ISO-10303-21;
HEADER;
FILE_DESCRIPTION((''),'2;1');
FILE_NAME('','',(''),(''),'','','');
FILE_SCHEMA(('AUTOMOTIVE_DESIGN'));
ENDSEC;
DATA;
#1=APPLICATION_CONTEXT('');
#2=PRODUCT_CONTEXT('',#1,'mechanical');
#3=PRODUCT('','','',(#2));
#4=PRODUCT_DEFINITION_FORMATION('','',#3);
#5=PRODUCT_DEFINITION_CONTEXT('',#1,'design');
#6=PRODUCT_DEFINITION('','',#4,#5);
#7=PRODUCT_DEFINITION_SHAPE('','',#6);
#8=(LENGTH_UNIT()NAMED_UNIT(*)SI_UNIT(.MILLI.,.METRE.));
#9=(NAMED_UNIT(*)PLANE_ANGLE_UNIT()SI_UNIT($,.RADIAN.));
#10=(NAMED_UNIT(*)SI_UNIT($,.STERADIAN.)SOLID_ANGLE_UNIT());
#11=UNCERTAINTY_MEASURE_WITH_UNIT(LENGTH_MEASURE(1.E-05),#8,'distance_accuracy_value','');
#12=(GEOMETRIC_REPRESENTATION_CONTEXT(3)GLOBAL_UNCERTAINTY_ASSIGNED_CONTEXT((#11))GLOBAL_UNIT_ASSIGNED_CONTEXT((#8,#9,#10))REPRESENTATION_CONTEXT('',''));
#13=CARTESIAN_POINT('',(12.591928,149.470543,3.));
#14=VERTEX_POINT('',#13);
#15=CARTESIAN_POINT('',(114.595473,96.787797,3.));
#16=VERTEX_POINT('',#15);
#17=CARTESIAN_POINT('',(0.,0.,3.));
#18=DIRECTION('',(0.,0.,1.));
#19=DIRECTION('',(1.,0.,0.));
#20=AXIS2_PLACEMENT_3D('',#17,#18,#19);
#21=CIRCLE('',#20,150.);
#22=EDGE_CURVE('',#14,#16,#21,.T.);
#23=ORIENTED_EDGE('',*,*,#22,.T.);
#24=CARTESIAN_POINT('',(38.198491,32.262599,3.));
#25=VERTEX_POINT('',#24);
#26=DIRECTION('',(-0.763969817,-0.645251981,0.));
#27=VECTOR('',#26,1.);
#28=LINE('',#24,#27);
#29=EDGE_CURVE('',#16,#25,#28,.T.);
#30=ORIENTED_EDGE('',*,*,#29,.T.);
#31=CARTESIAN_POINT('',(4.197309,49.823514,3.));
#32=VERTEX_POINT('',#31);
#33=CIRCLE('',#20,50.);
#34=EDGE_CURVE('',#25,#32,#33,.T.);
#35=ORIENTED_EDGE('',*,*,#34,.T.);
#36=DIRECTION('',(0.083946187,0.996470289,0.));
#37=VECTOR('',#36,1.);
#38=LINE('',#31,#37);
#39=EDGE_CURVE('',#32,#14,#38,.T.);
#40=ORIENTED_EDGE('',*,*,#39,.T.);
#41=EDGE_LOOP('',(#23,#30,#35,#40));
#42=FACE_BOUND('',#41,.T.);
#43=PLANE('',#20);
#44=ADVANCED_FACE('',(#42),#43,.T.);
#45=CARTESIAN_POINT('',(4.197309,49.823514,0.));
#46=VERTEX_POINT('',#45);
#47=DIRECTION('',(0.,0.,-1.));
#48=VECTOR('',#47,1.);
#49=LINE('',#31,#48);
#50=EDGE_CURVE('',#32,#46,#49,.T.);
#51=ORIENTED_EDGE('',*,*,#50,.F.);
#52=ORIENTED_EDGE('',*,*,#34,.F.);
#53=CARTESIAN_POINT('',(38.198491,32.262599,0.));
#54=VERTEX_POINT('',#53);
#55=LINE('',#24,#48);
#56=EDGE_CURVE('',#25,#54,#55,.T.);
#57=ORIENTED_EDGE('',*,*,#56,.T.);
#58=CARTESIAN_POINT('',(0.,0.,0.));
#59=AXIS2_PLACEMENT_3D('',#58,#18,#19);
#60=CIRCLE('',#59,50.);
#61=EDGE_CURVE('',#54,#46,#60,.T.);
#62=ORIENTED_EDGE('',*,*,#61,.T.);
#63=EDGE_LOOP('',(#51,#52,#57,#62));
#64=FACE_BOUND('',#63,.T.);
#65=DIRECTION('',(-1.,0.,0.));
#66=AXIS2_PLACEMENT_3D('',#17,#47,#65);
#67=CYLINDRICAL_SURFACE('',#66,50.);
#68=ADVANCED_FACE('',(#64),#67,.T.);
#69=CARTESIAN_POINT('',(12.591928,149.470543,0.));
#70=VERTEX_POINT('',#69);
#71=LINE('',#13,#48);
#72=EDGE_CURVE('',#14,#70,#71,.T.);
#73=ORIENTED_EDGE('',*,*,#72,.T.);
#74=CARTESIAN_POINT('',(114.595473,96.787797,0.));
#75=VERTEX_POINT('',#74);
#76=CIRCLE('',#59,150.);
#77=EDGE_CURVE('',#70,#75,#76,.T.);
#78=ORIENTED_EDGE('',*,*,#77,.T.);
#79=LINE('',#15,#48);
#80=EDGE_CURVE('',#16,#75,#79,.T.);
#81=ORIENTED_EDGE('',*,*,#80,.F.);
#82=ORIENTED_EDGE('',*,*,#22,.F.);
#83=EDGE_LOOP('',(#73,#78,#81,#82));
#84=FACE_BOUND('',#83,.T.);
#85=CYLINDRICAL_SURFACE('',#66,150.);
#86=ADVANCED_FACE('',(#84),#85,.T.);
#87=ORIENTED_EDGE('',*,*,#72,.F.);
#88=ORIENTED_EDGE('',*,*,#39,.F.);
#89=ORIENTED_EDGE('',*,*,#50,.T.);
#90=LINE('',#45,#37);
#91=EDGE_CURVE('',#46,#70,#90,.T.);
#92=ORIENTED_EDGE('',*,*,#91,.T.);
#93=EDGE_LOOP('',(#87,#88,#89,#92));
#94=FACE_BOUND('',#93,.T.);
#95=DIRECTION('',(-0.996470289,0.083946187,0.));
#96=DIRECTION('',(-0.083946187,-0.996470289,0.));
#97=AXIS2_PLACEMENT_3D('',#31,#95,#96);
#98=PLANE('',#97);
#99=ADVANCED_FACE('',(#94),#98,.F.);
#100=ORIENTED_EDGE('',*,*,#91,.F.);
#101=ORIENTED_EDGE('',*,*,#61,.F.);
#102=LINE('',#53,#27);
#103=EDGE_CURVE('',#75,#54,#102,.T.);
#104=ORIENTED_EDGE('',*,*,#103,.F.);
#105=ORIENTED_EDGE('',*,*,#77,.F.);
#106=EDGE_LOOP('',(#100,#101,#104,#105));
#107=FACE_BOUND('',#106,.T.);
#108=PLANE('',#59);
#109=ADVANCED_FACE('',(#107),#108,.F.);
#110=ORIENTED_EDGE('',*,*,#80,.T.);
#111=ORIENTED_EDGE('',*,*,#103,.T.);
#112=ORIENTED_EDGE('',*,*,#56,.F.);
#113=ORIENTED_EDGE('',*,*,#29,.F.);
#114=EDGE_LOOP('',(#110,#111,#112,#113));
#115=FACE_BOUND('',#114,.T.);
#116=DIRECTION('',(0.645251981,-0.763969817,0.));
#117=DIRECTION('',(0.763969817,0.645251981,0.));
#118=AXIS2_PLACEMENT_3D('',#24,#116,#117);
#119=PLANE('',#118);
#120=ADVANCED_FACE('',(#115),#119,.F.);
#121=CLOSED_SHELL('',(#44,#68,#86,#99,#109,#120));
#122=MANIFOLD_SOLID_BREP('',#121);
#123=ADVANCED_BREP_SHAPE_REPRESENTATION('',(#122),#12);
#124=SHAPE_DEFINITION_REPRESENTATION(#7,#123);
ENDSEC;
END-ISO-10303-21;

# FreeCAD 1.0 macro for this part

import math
import FreeCAD as App
import Part
import Sketcher
Q = App.Units.Quantity

doc = App.newDocument("Part")
body = doc.addObject("PartDesign::Body", "Body")

# Sketch on XY plane
sketch1 = body.newObject("Sketcher::SketchObject", "Sketch")
sketch1.AttachmentSupport = (doc.getObject("XY_Plane"), [""])
sketch1.MapMode = "FlatFace"
sketch1.addGeometry([
    Part.LineSegment(App.Vector(4, 50, 0), App.Vector(13, 149, 0)),
    Part.ArcOfCircle(Part.Circle(App.Vector(0, 0, 0), App.Vector(0, 0, 1), 150), math.radians(85), math.radians(400)),
    Part.LineSegment(App.Vector(115, 97, 0), App.Vector(38, 32, 0)),
    Part.ArcOfCircle(Part.Circle(App.Vector(0, 0, 0), App.Vector(0, 0, 1), 50), math.radians(40), math.radians(85)),
], False)
sketch1.addConstraint([
    Sketcher.Constraint("Coincident", 0, 2, 1, 1),
    Sketcher.Constraint("Coincident", 1, 2, 2, 1),
    Sketcher.Constraint("Coincident", 2, 2, 3, 1),
    Sketcher.Constraint("Coincident", 3, 2, 0, 1),
    Sketcher.Constraint("Coincident", 1, 3, -1, 1),
    Sketcher.Constraint("Coincident", 3, 3, -1, 1),
    Sketcher.Constraint("Radius", 1, Q("150 mm")),
    Sketcher.Constraint("Radius", 3, Q("50 mm")),
    Sketcher.Constraint("DistanceY", -1, 1, 2, 2, Q("32.262599 mm")),
    Sketcher.Constraint("DistanceY", 2, 2, 1, 2, Q("64.525198 mm")),
    Sketcher.Constraint("DistanceX", -1, 1, 3, 2, Q("4.197309 mm")),
    Sketcher.Constraint("DistanceX", 3, 2, 0, 2, Q("8.394619 mm")),
])
pad1 = body.newObject("PartDesign::Pad", "Pad")
pad1.Profile = sketch1
pad1.Length = 3

doc.recompute()
